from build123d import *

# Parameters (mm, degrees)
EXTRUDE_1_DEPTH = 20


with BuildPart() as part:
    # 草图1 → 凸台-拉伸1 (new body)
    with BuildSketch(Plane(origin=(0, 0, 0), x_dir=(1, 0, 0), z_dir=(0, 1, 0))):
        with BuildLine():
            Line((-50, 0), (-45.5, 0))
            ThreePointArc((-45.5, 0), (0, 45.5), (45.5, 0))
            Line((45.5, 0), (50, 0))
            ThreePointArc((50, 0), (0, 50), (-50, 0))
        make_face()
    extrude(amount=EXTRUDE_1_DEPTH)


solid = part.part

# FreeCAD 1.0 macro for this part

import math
import FreeCAD as App
import Part
import Sketcher
Q = App.Units.Quantity

doc = App.newDocument("Part")
body = doc.addObject("PartDesign::Body", "Body")

# Sketch on XZ plane
sketch1 = body.newObject("Sketcher::SketchObject", "Sketch")
sketch1.AttachmentSupport = (doc.getObject("XZ_Plane"), [""])
sketch1.MapMode = "FlatFace"
sketch1.addGeometry(Part.LineSegment(App.Vector(-50, 0, 0), App.Vector(-45.5, 0, 0)), False)
sketch1.addGeometry(Part.ArcOfCircle(Part.Circle(App.Vector(0, 0, 0), App.Vector(0, 0, 1), 45.5), math.radians(180), math.radians(360)), False)
sketch1.addGeometry(Part.LineSegment(App.Vector(45.5, 0, 0), App.Vector(50, 0, 0)), False)
sketch1.addGeometry(Part.ArcOfCircle(Part.Circle(App.Vector(0, 0, 0), App.Vector(0, 0, 1), 50), math.radians(180), math.radians(360)), False)
sketch1.addConstraint(Sketcher.Constraint("Coincident", 0, 2, 1, 1))
sketch1.addConstraint(Sketcher.Constraint("Coincident", 1, 2, 2, 1))
sketch1.addConstraint(Sketcher.Constraint("Coincident", 2, 2, 3, 2))
sketch1.addConstraint(Sketcher.Constraint("Coincident", 3, 1, 0, 1))
sketch1.addConstraint(Sketcher.Constraint("Horizontal", 0))
sketch1.addConstraint(Sketcher.Constraint("Horizontal", 2))
sketch1.addConstraint(Sketcher.Constraint("Coincident", 1, 3, -1, 1))
sketch1.addConstraint(Sketcher.Constraint("Coincident", 3, 3, -1, 1))
sketch1.addConstraint(Sketcher.Constraint("PointOnObject", 0, 2, -1))
sketch1.addConstraint(Sketcher.Constraint("PointOnObject", 1, 2, -1))
sketch1.addConstraint(Sketcher.Constraint("Radius", 3, Q("50 mm")))
sketch1.addConstraint(Sketcher.Constraint("Radius", 1, Q("45.5 mm")))
pad1 = body.newObject("PartDesign::Pad", "Pad")
pad1.Profile = sketch1
pad1.Length = 20
pad1.Reversed = True

doc.recompute()
